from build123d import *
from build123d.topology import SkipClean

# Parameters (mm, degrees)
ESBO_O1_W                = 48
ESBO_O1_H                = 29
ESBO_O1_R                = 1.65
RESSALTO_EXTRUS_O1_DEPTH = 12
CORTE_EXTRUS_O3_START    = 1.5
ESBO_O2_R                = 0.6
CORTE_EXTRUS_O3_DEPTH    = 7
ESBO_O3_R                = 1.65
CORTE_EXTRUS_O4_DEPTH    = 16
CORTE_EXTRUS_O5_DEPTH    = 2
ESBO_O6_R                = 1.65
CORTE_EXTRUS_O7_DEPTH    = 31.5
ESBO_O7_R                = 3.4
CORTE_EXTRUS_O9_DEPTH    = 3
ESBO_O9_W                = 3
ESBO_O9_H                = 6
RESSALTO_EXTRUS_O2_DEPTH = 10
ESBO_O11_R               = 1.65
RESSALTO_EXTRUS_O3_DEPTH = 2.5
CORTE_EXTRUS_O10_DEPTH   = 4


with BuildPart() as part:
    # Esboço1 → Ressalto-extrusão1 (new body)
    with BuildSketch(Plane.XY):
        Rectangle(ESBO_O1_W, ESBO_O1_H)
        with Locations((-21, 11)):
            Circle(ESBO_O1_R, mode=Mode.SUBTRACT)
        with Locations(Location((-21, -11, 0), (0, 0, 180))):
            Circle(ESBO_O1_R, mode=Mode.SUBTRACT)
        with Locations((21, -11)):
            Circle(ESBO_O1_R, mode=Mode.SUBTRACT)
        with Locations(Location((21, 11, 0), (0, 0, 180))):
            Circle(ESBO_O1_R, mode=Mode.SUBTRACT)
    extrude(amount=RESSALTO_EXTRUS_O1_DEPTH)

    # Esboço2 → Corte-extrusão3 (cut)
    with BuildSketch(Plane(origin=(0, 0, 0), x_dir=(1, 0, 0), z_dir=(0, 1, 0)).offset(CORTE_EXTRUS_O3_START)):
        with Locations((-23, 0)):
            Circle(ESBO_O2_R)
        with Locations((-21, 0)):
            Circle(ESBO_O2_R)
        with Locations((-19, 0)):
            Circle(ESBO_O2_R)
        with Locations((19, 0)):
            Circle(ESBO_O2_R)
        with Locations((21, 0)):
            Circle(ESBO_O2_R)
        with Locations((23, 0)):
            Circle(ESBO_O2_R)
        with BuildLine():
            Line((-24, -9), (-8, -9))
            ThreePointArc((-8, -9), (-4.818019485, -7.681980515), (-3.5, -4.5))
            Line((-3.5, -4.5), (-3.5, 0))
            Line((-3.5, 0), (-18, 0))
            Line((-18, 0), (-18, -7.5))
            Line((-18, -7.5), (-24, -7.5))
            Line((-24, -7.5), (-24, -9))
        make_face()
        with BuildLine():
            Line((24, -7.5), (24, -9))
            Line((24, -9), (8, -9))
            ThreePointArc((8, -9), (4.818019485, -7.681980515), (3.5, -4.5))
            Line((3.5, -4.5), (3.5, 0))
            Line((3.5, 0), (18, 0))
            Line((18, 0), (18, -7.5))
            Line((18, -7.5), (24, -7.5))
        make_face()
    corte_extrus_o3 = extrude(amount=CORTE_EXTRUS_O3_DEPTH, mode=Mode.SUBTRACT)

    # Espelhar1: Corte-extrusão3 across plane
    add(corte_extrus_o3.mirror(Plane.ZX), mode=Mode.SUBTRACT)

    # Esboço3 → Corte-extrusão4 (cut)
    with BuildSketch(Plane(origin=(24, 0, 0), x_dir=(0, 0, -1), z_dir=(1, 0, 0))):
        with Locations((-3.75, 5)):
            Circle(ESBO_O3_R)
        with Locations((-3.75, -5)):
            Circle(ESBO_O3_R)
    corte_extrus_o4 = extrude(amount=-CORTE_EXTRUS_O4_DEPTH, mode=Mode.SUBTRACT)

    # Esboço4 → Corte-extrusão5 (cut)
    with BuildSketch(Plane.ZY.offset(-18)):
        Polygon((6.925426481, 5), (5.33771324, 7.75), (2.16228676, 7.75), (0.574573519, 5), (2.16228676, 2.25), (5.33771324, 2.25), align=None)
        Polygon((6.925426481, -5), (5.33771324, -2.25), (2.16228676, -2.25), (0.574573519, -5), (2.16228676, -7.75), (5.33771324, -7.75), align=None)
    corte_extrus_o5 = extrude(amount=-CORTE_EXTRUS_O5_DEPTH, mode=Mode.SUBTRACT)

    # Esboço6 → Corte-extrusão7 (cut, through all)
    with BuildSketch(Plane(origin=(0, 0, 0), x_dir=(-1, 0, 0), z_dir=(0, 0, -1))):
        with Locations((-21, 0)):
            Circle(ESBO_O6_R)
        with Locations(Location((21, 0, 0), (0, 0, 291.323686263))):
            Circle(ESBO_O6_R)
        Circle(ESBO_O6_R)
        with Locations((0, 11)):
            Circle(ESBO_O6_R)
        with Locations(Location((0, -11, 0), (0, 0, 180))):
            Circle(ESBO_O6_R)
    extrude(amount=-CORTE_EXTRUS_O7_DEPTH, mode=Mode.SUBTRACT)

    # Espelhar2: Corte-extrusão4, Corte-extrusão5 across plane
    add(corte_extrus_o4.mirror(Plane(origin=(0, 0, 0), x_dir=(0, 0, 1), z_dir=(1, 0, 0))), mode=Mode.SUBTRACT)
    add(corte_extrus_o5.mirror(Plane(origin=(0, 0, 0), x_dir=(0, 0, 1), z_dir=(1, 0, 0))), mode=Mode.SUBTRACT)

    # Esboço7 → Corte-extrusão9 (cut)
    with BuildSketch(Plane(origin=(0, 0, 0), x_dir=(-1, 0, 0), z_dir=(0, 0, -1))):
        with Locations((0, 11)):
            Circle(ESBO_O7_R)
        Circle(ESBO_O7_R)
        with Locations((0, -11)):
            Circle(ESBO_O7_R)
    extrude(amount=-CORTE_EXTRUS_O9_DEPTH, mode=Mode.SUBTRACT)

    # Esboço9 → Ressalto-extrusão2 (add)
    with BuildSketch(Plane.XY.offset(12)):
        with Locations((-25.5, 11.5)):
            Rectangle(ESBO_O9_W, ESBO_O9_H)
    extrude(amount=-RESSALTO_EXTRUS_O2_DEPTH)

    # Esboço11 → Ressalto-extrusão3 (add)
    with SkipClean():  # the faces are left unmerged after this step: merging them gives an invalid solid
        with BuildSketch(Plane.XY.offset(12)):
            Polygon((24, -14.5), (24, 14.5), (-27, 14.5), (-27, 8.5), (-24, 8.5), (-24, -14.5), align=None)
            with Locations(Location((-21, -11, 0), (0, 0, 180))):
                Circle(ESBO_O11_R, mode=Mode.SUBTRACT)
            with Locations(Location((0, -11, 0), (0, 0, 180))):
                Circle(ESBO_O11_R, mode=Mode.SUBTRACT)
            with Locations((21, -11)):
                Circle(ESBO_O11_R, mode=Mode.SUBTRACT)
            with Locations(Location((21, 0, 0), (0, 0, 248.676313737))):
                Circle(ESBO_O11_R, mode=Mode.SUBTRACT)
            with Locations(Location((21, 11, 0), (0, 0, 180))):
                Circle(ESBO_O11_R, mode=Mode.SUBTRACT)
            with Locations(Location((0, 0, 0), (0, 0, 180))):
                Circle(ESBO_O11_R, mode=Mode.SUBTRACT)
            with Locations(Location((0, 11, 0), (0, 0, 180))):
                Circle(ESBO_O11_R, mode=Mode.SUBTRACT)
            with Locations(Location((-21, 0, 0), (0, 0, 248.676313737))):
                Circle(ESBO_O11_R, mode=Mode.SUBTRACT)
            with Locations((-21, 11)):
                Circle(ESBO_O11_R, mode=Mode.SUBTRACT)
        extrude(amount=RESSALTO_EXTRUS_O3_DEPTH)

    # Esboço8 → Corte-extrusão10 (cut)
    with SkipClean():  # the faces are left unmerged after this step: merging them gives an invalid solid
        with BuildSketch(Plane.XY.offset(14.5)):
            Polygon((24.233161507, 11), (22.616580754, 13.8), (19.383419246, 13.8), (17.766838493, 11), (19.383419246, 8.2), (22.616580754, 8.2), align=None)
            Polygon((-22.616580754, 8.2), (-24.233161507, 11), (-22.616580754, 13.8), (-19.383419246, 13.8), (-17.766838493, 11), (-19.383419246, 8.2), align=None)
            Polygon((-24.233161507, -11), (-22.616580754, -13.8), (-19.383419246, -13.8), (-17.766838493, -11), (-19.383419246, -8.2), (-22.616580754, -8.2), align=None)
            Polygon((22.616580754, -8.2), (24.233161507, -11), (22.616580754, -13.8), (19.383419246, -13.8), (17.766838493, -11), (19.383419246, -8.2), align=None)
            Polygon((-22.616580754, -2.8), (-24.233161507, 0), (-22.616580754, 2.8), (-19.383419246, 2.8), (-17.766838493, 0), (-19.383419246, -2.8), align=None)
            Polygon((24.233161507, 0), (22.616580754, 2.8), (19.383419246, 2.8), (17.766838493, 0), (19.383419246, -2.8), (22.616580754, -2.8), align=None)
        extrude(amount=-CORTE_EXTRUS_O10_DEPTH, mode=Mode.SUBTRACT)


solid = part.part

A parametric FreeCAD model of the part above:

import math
import FreeCAD as App
import Part
import Sketcher
Q = App.Units.Quantity


def add_polygon(sketch, points):
    """Adds a closed chain of lines whose ends are joined by coincident constraints."""
    first, n = sketch.GeometryCount, len(points)
    for a, b in zip(points, points[1:] + points[:1]):
        sketch.addGeometry(Part.LineSegment(App.Vector(*a, 0), App.Vector(*b, 0)), False)
    for i in range(n):
        sketch.addConstraint(Sketcher.Constraint("Coincident", first + i, 2, first + (i + 1) % n, 1))

doc = App.newDocument("Part")
body = doc.addObject("PartDesign::Body", "Body")

sketch1 = body.newObject("Sketcher::SketchObject", "Sketch")
sketch1.AttachmentSupport = (doc.getObject("XY_Plane"), [""])
sketch1.MapMode = "FlatFace"
add_polygon(sketch1, [(-24, 14.5), (-24, -14.5), (24, -14.5), (24, 14.5)])
sketch1.addGeometry(Part.Circle(App.Vector(-21, -11, 0), App.Vector(0, 0, 1), 1.65), False)
sketch1.addGeometry(Part.Circle(App.Vector(21, -11, 0), App.Vector(0, 0, 1), 1.65), False)
sketch1.addGeometry(Part.Circle(App.Vector(-21, 11, 0), App.Vector(0, 0, 1), 1.65), False)
sketch1.addGeometry(Part.Circle(App.Vector(21, 11, 0), App.Vector(0, 0, 1), 1.65), False)
sketch1.addConstraint([
    Sketcher.Constraint("Vertical", 0),
    Sketcher.Constraint("Horizontal", 1),
    Sketcher.Constraint("Vertical", 2),
    Sketcher.Constraint("Horizontal", 3),
    Sketcher.Constraint("Equal", 4, 5),
    Sketcher.Constraint("Equal", 5, 6),
    Sketcher.Constraint("Equal", 6, 7),
    Sketcher.Constraint("Symmetric", 5, 3, 6, 3, -1, 1),
    Sketcher.Constraint("Symmetric", 4, 3, 7, 3, -1, 1),
    Sketcher.Constraint("Symmetric", 0, 2, 2, 2, -1, 1),
    Sketcher.Constraint("Symmetric", 4, 3, 5, 3, -2),
    Sketcher.Constraint("Diameter", 4, Q("3.3 mm")),
    Sketcher.Constraint("DistanceX", 1, 1, 1, 2, Q("48 mm")),
    Sketcher.Constraint("DistanceY", 0, 2, 0, 1, Q("29 mm")),
    Sketcher.Constraint("DistanceX", 4, 3, -1, 1, Q("21 mm")),
    Sketcher.Constraint("DistanceY", 4, 3, -1, 1, Q("11 mm")),
])
pad1 = body.newObject("PartDesign::Pad", "Pad")
pad1.Profile = sketch1
pad1.Length = 12

sketch2 = body.newObject("Sketcher::SketchObject", "Sketch001")
sketch2.AttachmentSupport = (doc.getObject("XZ_Plane"), [""])
sketch2.MapMode = "FlatFace"
sketch2.AttachmentOffset = App.Placement(App.Vector(0, 0, -1.5), App.Rotation())
sketch2.addGeometry([
    Part.Circle(App.Vector(-23, 0, 0), App.Vector(0, 0, 1), 0.6),
    Part.Circle(App.Vector(-21, 0, 0), App.Vector(0, 0, 1), 0.6),
    Part.Circle(App.Vector(-19, 0, 0), App.Vector(0, 0, 1), 0.6),
    Part.Circle(App.Vector(19, 0, 0), App.Vector(0, 0, 1), 0.6),
    Part.Circle(App.Vector(21, 0, 0), App.Vector(0, 0, 1), 0.6),
    Part.Circle(App.Vector(23, 0, 0), App.Vector(0, 0, 1), 0.6),
    Part.LineSegment(App.Vector(-24, 9, 0), App.Vector(-8, 9, 0)),
    Part.ArcOfCircle(Part.Circle(App.Vector(-8, 4.5, 0), App.Vector(0, 0, 1), 4.5), math.radians(0), math.radians(90)),
    Part.LineSegment(App.Vector(-3.5, 4.5, 0), App.Vector(-3.5, 0, 0)),
    Part.LineSegment(App.Vector(-3.5, 0, 0), App.Vector(-18, 0, 0)),
    Part.LineSegment(App.Vector(-18, 0, 0), App.Vector(-18, 7.5, 0)),
    Part.LineSegment(App.Vector(-18, 7.5, 0), App.Vector(-24, 7.5, 0)),
    Part.LineSegment(App.Vector(-24, 7.5, 0), App.Vector(-24, 9, 0)),
    Part.LineSegment(App.Vector(24, 9, 0), App.Vector(24, 7.5, 0)),
    Part.LineSegment(App.Vector(24, 7.5, 0), App.Vector(18, 7.5, 0)),
    Part.LineSegment(App.Vector(18, 7.5, 0), App.Vector(18, 0, 0)),
    Part.LineSegment(App.Vector(18, 0, 0), App.Vector(3.5, 0, 0)),
    Part.LineSegment(App.Vector(3.5, 0, 0), App.Vector(3.5, 4.5, 0)),
    Part.ArcOfCircle(Part.Circle(App.Vector(8, 4.5, 0), App.Vector(0, 0, 1), 4.5), math.radians(90), math.radians(180)),
    Part.LineSegment(App.Vector(8, 9, 0), App.Vector(24, 9, 0)),
], False)
sketch2.addConstraint([
    Sketcher.Constraint("Tangent", 6, 2, 7, 2),
    Sketcher.Constraint("Tangent", 7, 1, 8, 1),
    Sketcher.Constraint("Coincident", 8, 2, 9, 1),
    Sketcher.Constraint("Coincident", 9, 2, 10, 1),
    Sketcher.Constraint("Coincident", 10, 2, 11, 1),
    Sketcher.Constraint("Coincident", 11, 2, 12, 1),
    Sketcher.Constraint("Coincident", 12, 2, 6, 1),
    Sketcher.Constraint("Coincident", 13, 2, 14, 1),
    Sketcher.Constraint("Coincident", 14, 2, 15, 1),
    Sketcher.Constraint("Coincident", 15, 2, 16, 1),
    Sketcher.Constraint("Coincident", 16, 2, 17, 1),
    Sketcher.Constraint("Tangent", 17, 2, 18, 2),
    Sketcher.Constraint("Tangent", 18, 1, 19, 1),
    Sketcher.Constraint("Coincident", 19, 2, 13, 1),
    Sketcher.Constraint("Horizontal", 6),
    Sketcher.Constraint("Vertical", 8),
    Sketcher.Constraint("Horizontal", 9),
    Sketcher.Constraint("Vertical", 10),
    Sketcher.Constraint("Horizontal", 11),
    Sketcher.Constraint("Vertical", 12),
    Sketcher.Constraint("Vertical", 13),
    Sketcher.Constraint("Horizontal", 14),
    Sketcher.Constraint("Vertical", 15),
    Sketcher.Constraint("Horizontal", 16),
    Sketcher.Constraint("Vertical", 17),
    Sketcher.Constraint("Horizontal", 19),
    Sketcher.Constraint("Equal", 0, 1),
    Sketcher.Constraint("Equal", 1, 2),
    Sketcher.Constraint("Equal", 2, 3),
    Sketcher.Constraint("Equal", 3, 4),
    Sketcher.Constraint("Equal", 4, 5),
    Sketcher.Constraint("Equal", 7, 18),
    Sketcher.Constraint("Symmetric", 2, 3, 3, 3, -1, 1),
    Sketcher.Constraint("Symmetric", 1, 3, 4, 3, -1, 1),
    Sketcher.Constraint("Symmetric", 0, 3, 5, 3, -1, 1),
    Sketcher.Constraint("Symmetric", 9, 2, 15, 2, -1, 1),
    Sketcher.Constraint("Symmetric", 7, 3, 18, 3, -2),
    Sketcher.Constraint("Symmetric", 11, 2, 13, 2, -2),
    Sketcher.Constraint("PointOnObject", 0, 3, -1),
    Sketcher.Constraint("PointOnObject", 1, 3, -1),
    Sketcher.Constraint("PointOnObject", 2, 3, -1),
    Sketcher.Constraint("PointOnObject", 8, 2, -1),
    Sketcher.Constraint("Diameter", 0, Q("1.2 mm")),
    Sketcher.Constraint("Radius", 7, Q("4.5 mm")),
    Sketcher.Constraint("DistanceX", 6, 1, 6, 2, Q("16 mm")),
    Sketcher.Constraint("DistanceX", 11, 2, 11, 1, Q("6 mm")),
    Sketcher.Constraint("DistanceY", 8, 2, 8, 1, Q("4.5 mm")),
    Sketcher.Constraint("DistanceY", 10, 1, 10, 2, Q("7.5 mm")),
    Sketcher.Constraint("DistanceX", 0, 3, -1, 1, Q("23 mm")),
    Sketcher.Constraint("DistanceX", 1, 3, -1, 1, Q("21 mm")),
    Sketcher.Constraint("DistanceX", 2, 3, -1, 1, Q("19 mm")),
    Sketcher.Constraint("DistanceX", 7, 3, -1, 1, Q("8 mm")),
])
pocket1 = body.newObject("PartDesign::Pocket", "Pocket")
pocket1.Profile = sketch2
pocket1.Length = 7
doc.recompute()

mirrored = body.newObject("PartDesign::Mirrored", "Mirrored")
mirrored.Originals = [pocket1]
mirrored.MirrorPlane = (doc.getObject("XZ_Plane"), [""])
body.Tip = mirrored

sketch3 = body.newObject("Sketcher::SketchObject", "Sketch002")
sketch3.AttachmentSupport = (doc.getObject("YZ_Plane"), [""])
sketch3.MapMode = "FlatFace"
sketch3.AttachmentOffset = App.Placement(App.Vector(0, 0, 24), App.Rotation())
sketch3.addGeometry([
    Part.Circle(App.Vector(5, 3.75, 0), App.Vector(0, 0, 1), 1.65),
    Part.Circle(App.Vector(-5, 3.75, 0), App.Vector(0, 0, 1), 1.65),
], False)
sketch3.addConstraint([
    Sketcher.Constraint("Equal", 0, 1),
    Sketcher.Constraint("Symmetric", 0, 3, 1, 3, -2),
    Sketcher.Constraint("Diameter", 0, Q("3.3 mm")),
    Sketcher.Constraint("DistanceX", -1, 1, 0, 3, Q("5 mm")),
    Sketcher.Constraint("DistanceY", -1, 1, 0, 3, Q("3.75 mm")),
])
pocket2 = body.newObject("PartDesign::Pocket", "Pocket001")
pocket2.Profile = sketch3
pocket2.Length = 16

sketch4 = body.newObject("Sketcher::SketchObject", "Sketch003")
sketch4.AttachmentSupport = (doc.getObject("YZ_Plane"), [""])
sketch4.MapMode = "FlatFace"
sketch4.AttachmentOffset = App.Placement(App.Vector(0, 0, 18), App.Rotation())
add_polygon(sketch4, [(5, 6.925426), (7.75, 5.337713), (7.75, 2.162287), (5, 0.574574), (2.25, 2.162287), (2.25, 5.337713)])
add_polygon(sketch4, [(-5, 6.925426), (-2.25, 5.337713), (-2.25, 2.162287), (-5, 0.574574), (-7.75, 2.162287), (-7.75, 5.337713)])
sketch4.addConstraint([
    Sketcher.Constraint("Vertical", 1),
    Sketcher.Constraint("Vertical", 4),
    Sketcher.Constraint("Vertical", 7),
    Sketcher.Constraint("Vertical", 10),
    Sketcher.Constraint("Symmetric", 4, 2, 6, 2, -2),
    Sketcher.Constraint("Symmetric", 2, 2, 8, 2, -2),
    Sketcher.Constraint("Symmetric", 1, 2, 9, 2, -2),
    Sketcher.Constraint("Symmetric", 5, 2, 11, 2, -2),
    Sketcher.Constraint("Parallel", 0, 3),
    Sketcher.Constraint("Parallel", 2, 5),
    Sketcher.Constraint("Parallel", 3, 6),
    Sketcher.Constraint("Parallel", 5, 8),
    Sketcher.Constraint("Parallel", 8, 11),
    Sketcher.Constraint("Horizontal", 1, 2, 3, 2),
    Sketcher.Constraint("Horizontal", 0, 2, 4, 2),
    Sketcher.Constraint("Angle", 0, Q("-30 deg")),
    Sketcher.Constraint("DistanceX", -1, 1, 2, 2, Q("5 mm")),
    Sketcher.Constraint("DistanceX", 3, 2, 1, 2, Q("5.5 mm")),
    Sketcher.Constraint("DistanceY", 1, 2, 1, 1, Q("3.175426 mm")),
    Sketcher.Constraint("DistanceY", -1, 1, 0, 2, Q("5.337713 mm")),
])
pocket3 = body.newObject("PartDesign::Pocket", "Pocket002")
pocket3.Profile = sketch4
pocket3.Length = 2
pocket3.Reversed = True

sketch5 = body.newObject("Sketcher::SketchObject", "Sketch004")
sketch5.AttachmentSupport = (doc.getObject("XY_Plane"), [""])
sketch5.MapMode = "FlatFace"
sketch5.addGeometry([
    Part.Circle(App.Vector(21, 0, 0), App.Vector(0, 0, 1), 1.65),
    Part.Circle(App.Vector(-21, 0, 0), App.Vector(0, 0, 1), 1.65),
    Part.Circle(App.Vector(0, 0, 0), App.Vector(0, 0, 1), 1.65),
    Part.Circle(App.Vector(0, 11, 0), App.Vector(0, 0, 1), 1.65),
    Part.Circle(App.Vector(0, -11, 0), App.Vector(0, 0, 1), 1.65),
], False)
sketch5.addConstraint([
    Sketcher.Constraint("Coincident", 2, 3, -1, 1),
    Sketcher.Constraint("Equal", 0, 1),
    Sketcher.Constraint("Equal", 1, 2),
    Sketcher.Constraint("Equal", 2, 3),
    Sketcher.Constraint("Equal", 3, 4),
    Sketcher.Constraint("Symmetric", 0, 3, 1, 3, -1, 1),
    Sketcher.Constraint("Symmetric", 3, 3, 4, 3, -1, 1),
    Sketcher.Constraint("PointOnObject", 0, 3, -1),
    Sketcher.Constraint("PointOnObject", 3, 3, -2),
    Sketcher.Constraint("Diameter", 0, Q("3.3 mm")),
    Sketcher.Constraint("DistanceX", -1, 1, 0, 3, Q("21 mm")),
    Sketcher.Constraint("DistanceY", -1, 1, 3, 3, Q("11 mm")),
])
pocket4 = body.newObject("PartDesign::Pocket", "Pocket003")
pocket4.Profile = sketch5
pocket4.Type = "ThroughAll"
pocket4.Reversed = True
doc.recompute()

mirrored2 = body.newObject("PartDesign::Mirrored", "Mirrored001")
mirrored2.Originals = [pocket2, pocket3]
mirrored2.MirrorPlane = (doc.getObject("YZ_Plane"), [""])
body.Tip = mirrored2

sketch6 = body.newObject("Sketcher::SketchObject", "Sketch005")
sketch6.AttachmentSupport = (doc.getObject("XY_Plane"), [""])
sketch6.MapMode = "FlatFace"
sketch6.addGeometry([
    Part.Circle(App.Vector(0, 11, 0), App.Vector(0, 0, 1), 3.4),
    Part.Circle(App.Vector(0, 0, 0), App.Vector(0, 0, 1), 3.4),
    Part.Circle(App.Vector(0, -11, 0), App.Vector(0, 0, 1), 3.4),
], False)
sketch6.addConstraint([
    Sketcher.Constraint("Coincident", 1, 3, -1, 1),
    Sketcher.Constraint("Equal", 0, 1),
    Sketcher.Constraint("Equal", 1, 2),
    Sketcher.Constraint("Symmetric", 0, 3, 2, 3, -1, 1),
    Sketcher.Constraint("PointOnObject", 0, 3, -2),
    Sketcher.Constraint("Diameter", 0, Q("6.8 mm")),
    Sketcher.Constraint("DistanceY", -1, 1, 0, 3, Q("11 mm")),
])
pocket5 = body.newObject("PartDesign::Pocket", "Pocket004")
pocket5.Profile = sketch6
pocket5.Length = 3
pocket5.Reversed = True

sketch7 = body.newObject("Sketcher::SketchObject", "Sketch006")
sketch7.AttachmentSupport = (doc.getObject("XY_Plane"), [""])
sketch7.MapMode = "FlatFace"
sketch7.AttachmentOffset = App.Placement(App.Vector(0, 0, 12), App.Rotation())
add_polygon(sketch7, [(-27, 14.5), (-27, 8.5), (-24, 8.5), (-24, 14.5)])
sketch7.addConstraint([
    Sketcher.Constraint("Vertical", 0),
    Sketcher.Constraint("Horizontal", 1),
    Sketcher.Constraint("Vertical", 2),
    Sketcher.Constraint("Horizontal", 3),
    Sketcher.Constraint("DistanceX", 1, 1, 1, 2, Q("3 mm")),
    Sketcher.Constraint("DistanceY", 0, 2, 0, 1, Q("6 mm")),
    Sketcher.Constraint("DistanceX", 0, 2, -1, 1, Q("27 mm")),
    Sketcher.Constraint("DistanceY", -1, 1, 0, 2, Q("8.5 mm")),
])
pad2 = body.newObject("PartDesign::Pad", "Pad001")
pad2.Profile = sketch7
pad2.Length = 10
pad2.Reversed = True

sketch8 = body.newObject("Sketcher::SketchObject", "Sketch007")
sketch8.AttachmentSupport = (doc.getObject("XY_Plane"), [""])
sketch8.MapMode = "FlatFace"
sketch8.AttachmentOffset = App.Placement(App.Vector(0, 0, 12), App.Rotation())
add_polygon(sketch8, [(24, -14.5), (24, 14.5), (-27, 14.5), (-27, 8.5), (-24, 8.5), (-24, -14.5)])
sketch8.addGeometry(Part.Circle(App.Vector(-21, -11, 0), App.Vector(0, 0, 1), 1.65), False)
sketch8.addGeometry(Part.Circle(App.Vector(0, -11, 0), App.Vector(0, 0, 1), 1.65), False)
sketch8.addGeometry(Part.Circle(App.Vector(21, -11, 0), App.Vector(0, 0, 1), 1.65), False)
sketch8.addGeometry(Part.Circle(App.Vector(-21, 0, 0), App.Vector(0, 0, 1), 1.65), False)
sketch8.addGeometry(Part.Circle(App.Vector(-21, 11, 0), App.Vector(0, 0, 1), 1.65), False)
sketch8.addGeometry(Part.Circle(App.Vector(0, 0, 0), App.Vector(0, 0, 1), 1.65), False)
sketch8.addGeometry(Part.Circle(App.Vector(21, 0, 0), App.Vector(0, 0, 1), 1.65), False)
sketch8.addGeometry(Part.Circle(App.Vector(0, 11, 0), App.Vector(0, 0, 1), 1.65), False)
sketch8.addGeometry(Part.Circle(App.Vector(21, 11, 0), App.Vector(0, 0, 1), 1.65), False)
sketch8.addConstraint([
    Sketcher.Constraint("Vertical", 0),
    Sketcher.Constraint("Horizontal", 1),
    Sketcher.Constraint("Vertical", 2),
    Sketcher.Constraint("Horizontal", 3),
    Sketcher.Constraint("Vertical", 4),
    Sketcher.Constraint("Horizontal", 5),
    Sketcher.Constraint("Coincident", 11, 3, -1, 1),
    Sketcher.Constraint("Equal", 6, 7),
    Sketcher.Constraint("Equal", 7, 8),
    Sketcher.Constraint("Equal", 8, 9),
    Sketcher.Constraint("Equal", 9, 10),
    Sketcher.Constraint("Equal", 10, 11),
    Sketcher.Constraint("Equal", 11, 12),
    Sketcher.Constraint("Equal", 12, 13),
    Sketcher.Constraint("Equal", 13, 14),
    Sketcher.Constraint("Symmetric", 8, 3, 10, 3, -1, 1),
    Sketcher.Constraint("Symmetric", 9, 3, 12, 3, -1, 1),
    Sketcher.Constraint("Symmetric", 7, 3, 13, 3, -1, 1),
    Sketcher.Constraint("Symmetric", 6, 3, 14, 3, -1, 1),
    Sketcher.Constraint("Symmetric", 0, 2, 4, 2, -1, 1),
    Sketcher.Constraint("Symmetric", 6, 3, 8, 3, -2),
    Sketcher.Constraint("PointOnObject", 7, 3, -2),
    Sketcher.Constraint("PointOnObject", 9, 3, -1),
    Sketcher.Constraint("Horizontal", 6, 3, 7, 3),
    Sketcher.Constraint("Vertical", 6, 3, 9, 3),
    Sketcher.Constraint("Diameter", 6, Q("3.3 mm")),
    Sketcher.Constraint("DistanceX", 1, 2, 1, 1, Q("51 mm")),
    Sketcher.Constraint("DistanceX", 3, 1, 3, 2, Q("3 mm")),
    Sketcher.Constraint("DistanceY", 0, 1, 0, 2, Q("29 mm")),
    Sketcher.Constraint("DistanceY", 2, 2, 2, 1, Q("6 mm")),
    Sketcher.Constraint("DistanceX", 6, 3, -1, 1, Q("21 mm")),
    Sketcher.Constraint("DistanceY", 6, 3, -1, 1, Q("11 mm")),
])
pad3 = body.newObject("PartDesign::Pad", "Pad002")
pad3.Profile = sketch8
pad3.Length = 2.5

sketch9 = body.newObject("Sketcher::SketchObject", "Sketch008")
sketch9.AttachmentSupport = (doc.getObject("XY_Plane"), [""])
sketch9.MapMode = "FlatFace"
sketch9.AttachmentOffset = App.Placement(App.Vector(0, 0, 14.5), App.Rotation())
add_polygon(sketch9, [(24.233162, 11), (22.616581, 13.8), (19.383419, 13.8), (17.766838, 11), (19.383419, 8.2), (22.616581, 8.2)])
add_polygon(sketch9, [(-24.233162, 11), (-22.616581, 8.2), (-19.383419, 8.2), (-17.766838, 11), (-19.383419, 13.8), (-22.616581, 13.8)])
add_polygon(sketch9, [(-24.233162, -11), (-22.616581, -13.8), (-19.383419, -13.8), (-17.766838, -11), (-19.383419, -8.2), (-22.616581, -8.2)])
add_polygon(sketch9, [(24.233162, -11), (22.616581, -8.2), (19.383419, -8.2), (17.766838, -11), (19.383419, -13.8), (22.616581, -13.8)])
add_polygon(sketch9, [(-24.233162, 0), (-22.616581, -2.8), (-19.383419, -2.8), (-17.766838, 0), (-19.383419, 2.8), (-22.616581, 2.8)])
add_polygon(sketch9, [(24.233162, 0), (22.616581, 2.8), (19.383419, 2.8), (17.766838, 0), (19.383419, -2.8), (22.616581, -2.8)])
sketch9.addConstraint([
    Sketcher.Constraint("Horizontal", 1),
    Sketcher.Constraint("Horizontal", 4),
    Sketcher.Constraint("Horizontal", 7),
    Sketcher.Constraint("Horizontal", 10),
    Sketcher.Constraint("Horizontal", 13),
    Sketcher.Constraint("Horizontal", 16),
    Sketcher.Constraint("Horizontal", 19),
    Sketcher.Constraint("Horizontal", 22),
    Sketcher.Constraint("Horizontal", 25),
    Sketcher.Constraint("Horizontal", 28),
    Sketcher.Constraint("Horizontal", 31),
    Sketcher.Constraint("Horizontal", 34),
    Sketcher.Constraint("Symmetric", 0, 2, 12, 2, -1, 1),
    Sketcher.Constraint("Symmetric", 2, 2, 14, 2, -1, 1),
    Sketcher.Constraint("Symmetric", 3, 2, 15, 2, -1, 1),
    Sketcher.Constraint("Symmetric", 5, 2, 17, 2, -1, 1),
    Sketcher.Constraint("Symmetric", 6, 2, 18, 2, -1, 1),
    Sketcher.Constraint("Symmetric", 8, 2, 20, 2, -1, 1),
    Sketcher.Constraint("Symmetric", 9, 2, 21, 2, -1, 1),
    Sketcher.Constraint("Symmetric", 11, 2, 23, 2, -1, 1),
    Sketcher.Constraint("Symmetric", 24, 2, 30, 2, -1, 1),
    Sketcher.Constraint("Symmetric", 26, 2, 32, 2, -1, 1),
    Sketcher.Constraint("Symmetric", 27, 2, 33, 2, -1, 1),
    Sketcher.Constraint("Symmetric", 29, 2, 35, 2, -1, 1),
    Sketcher.Constraint("Symmetric", 4, 2, 6, 2, -2),
    Sketcher.Constraint("Symmetric", 2, 2, 8, 2, -2),
    Sketcher.Constraint("Symmetric", 1, 2, 9, 2, -2),
    Sketcher.Constraint("Symmetric", 5, 2, 11, 2, -2),
    Sketcher.Constraint("Symmetric", 28, 2, 30, 2, -2),
    Sketcher.Constraint("PointOnObject", 26, 2, -1),
    Sketcher.Constraint("PointOnObject", 29, 2, -1),
    Sketcher.Constraint("Parallel", 0, 3),
    Sketcher.Constraint("Parallel", 2, 5),
    Sketcher.Constraint("Parallel", 3, 6),
    Sketcher.Constraint("Parallel", 5, 8),
    Sketcher.Constraint("Parallel", 8, 11),
    Sketcher.Constraint("Parallel", 11, 14),
    Sketcher.Constraint("Parallel", 14, 17),
    Sketcher.Constraint("Parallel", 17, 20),
    Sketcher.Constraint("Parallel", 20, 23),
    Sketcher.Constraint("Parallel", 21, 24),
    Sketcher.Constraint("Parallel", 23, 26),
    Sketcher.Constraint("Parallel", 24, 27),
    Sketcher.Constraint("Parallel", 29, 32),
    Sketcher.Constraint("Parallel", 32, 35),
    Sketcher.Constraint("Horizontal", 2, 2, 5, 2),
    Sketcher.Constraint("Vertical", 1, 2, 3, 2),
    Sketcher.Constraint("Vertical", 16, 2, 24, 2),
    Sketcher.Constraint("Vertical", 15, 2, 25, 2),
    Sketcher.Constraint("Vertical", 14, 2, 26, 2),
    Sketcher.Constraint("Angle", 0, Q("120 deg")),
    Sketcher.Constraint("DistanceY", -1, 1, 2, 2, Q("11 mm")),
    Sketcher.Constraint("DistanceX", 6, 2, 3, 2, Q("42 mm")),
    Sketcher.Constraint("DistanceY", -1, 1, 0, 2, Q("13.8 mm")),
    Sketcher.Constraint("DistanceX", 1, 2, 1, 1, Q("3.233162 mm")),
])
pocket6 = body.newObject("PartDesign::Pocket", "Pocket005")
pocket6.Profile = sketch9
pocket6.Length = 4

doc.recompute()
